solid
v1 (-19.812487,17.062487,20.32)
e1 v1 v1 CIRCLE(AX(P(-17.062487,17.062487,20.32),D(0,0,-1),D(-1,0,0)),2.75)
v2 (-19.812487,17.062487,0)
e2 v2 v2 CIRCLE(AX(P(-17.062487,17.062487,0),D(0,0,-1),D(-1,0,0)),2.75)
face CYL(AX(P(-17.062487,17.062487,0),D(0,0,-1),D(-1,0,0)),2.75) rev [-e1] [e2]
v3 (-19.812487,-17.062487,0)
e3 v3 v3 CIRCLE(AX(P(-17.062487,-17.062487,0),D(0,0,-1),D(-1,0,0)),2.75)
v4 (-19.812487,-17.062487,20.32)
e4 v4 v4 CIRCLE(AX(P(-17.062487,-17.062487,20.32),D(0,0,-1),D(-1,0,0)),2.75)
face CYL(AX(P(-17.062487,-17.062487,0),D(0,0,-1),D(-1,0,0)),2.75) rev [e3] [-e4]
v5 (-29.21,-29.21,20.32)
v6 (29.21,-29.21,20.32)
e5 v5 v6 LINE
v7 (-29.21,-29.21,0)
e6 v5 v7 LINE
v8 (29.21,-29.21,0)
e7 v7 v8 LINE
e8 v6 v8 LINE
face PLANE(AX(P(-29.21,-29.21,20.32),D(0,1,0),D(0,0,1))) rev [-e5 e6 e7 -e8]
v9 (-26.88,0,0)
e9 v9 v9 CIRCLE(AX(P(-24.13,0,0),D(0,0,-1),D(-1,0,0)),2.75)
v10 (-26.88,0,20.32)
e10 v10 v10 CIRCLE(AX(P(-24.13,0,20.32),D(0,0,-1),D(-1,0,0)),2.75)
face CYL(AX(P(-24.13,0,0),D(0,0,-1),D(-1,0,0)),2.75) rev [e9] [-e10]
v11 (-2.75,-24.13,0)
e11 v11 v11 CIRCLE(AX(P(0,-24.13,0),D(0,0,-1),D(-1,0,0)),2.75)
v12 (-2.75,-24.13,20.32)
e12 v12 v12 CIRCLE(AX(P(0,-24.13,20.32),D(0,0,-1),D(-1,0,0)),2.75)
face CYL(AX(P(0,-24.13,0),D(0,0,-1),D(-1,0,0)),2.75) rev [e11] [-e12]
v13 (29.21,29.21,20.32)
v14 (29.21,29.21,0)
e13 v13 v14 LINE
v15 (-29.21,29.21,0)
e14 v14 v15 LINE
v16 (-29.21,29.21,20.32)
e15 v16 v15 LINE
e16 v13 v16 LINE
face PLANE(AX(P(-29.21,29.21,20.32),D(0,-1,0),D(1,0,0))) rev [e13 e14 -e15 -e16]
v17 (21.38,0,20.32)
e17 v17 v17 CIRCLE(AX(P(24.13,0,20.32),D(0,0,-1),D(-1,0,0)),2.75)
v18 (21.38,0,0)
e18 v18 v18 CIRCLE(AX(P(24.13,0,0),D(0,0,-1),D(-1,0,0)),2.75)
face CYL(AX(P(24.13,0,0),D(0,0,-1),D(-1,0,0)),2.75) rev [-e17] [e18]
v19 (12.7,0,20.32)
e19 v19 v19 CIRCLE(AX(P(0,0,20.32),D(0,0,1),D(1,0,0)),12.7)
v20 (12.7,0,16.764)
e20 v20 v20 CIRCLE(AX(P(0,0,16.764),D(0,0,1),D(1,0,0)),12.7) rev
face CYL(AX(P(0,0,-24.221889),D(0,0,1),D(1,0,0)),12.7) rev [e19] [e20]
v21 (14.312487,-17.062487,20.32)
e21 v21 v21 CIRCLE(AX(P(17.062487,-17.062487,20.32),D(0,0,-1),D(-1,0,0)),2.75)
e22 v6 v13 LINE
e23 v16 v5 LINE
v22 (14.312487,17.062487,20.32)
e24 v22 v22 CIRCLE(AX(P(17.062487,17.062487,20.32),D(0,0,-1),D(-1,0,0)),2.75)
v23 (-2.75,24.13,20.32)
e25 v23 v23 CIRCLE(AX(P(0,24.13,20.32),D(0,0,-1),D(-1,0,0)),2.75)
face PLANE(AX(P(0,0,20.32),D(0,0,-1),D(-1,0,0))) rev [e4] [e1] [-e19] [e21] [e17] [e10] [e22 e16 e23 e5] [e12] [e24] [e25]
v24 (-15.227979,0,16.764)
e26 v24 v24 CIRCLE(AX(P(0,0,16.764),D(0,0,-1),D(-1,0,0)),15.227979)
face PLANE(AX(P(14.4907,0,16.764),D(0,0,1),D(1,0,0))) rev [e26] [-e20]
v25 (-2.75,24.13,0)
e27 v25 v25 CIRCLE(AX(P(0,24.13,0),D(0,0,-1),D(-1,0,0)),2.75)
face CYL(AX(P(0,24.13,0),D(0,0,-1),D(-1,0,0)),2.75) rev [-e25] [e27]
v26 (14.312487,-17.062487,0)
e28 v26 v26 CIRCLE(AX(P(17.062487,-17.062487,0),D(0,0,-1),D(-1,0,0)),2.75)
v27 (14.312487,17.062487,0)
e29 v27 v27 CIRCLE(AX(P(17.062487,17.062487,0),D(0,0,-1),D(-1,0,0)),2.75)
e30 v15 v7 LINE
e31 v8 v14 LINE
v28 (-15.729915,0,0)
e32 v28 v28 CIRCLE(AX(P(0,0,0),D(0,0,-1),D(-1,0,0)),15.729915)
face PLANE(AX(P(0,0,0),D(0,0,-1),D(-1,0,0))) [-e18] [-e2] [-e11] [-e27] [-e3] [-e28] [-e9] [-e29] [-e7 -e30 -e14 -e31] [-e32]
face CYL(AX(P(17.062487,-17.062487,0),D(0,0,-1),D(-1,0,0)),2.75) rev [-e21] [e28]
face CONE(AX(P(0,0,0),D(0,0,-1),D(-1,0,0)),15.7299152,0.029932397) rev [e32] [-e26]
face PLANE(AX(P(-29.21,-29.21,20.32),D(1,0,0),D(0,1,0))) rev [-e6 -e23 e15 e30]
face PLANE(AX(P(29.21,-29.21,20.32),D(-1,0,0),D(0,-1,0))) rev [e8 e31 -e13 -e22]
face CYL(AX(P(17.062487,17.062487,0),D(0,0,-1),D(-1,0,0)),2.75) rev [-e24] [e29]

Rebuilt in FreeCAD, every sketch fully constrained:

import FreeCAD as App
import Part
import Sketcher
from FreeCAD import Vector
Q = App.Units.Quantity


def add_polygon(sketch, points):
    """Adds a closed chain of lines whose ends are joined by coincident constraints."""
    first, n = sketch.GeometryCount, len(points)
    for a, b in zip(points, points[1:] + points[:1]):
        sketch.addGeometry(Part.LineSegment(App.Vector(*a, 0), App.Vector(*b, 0)), False)
    for i in range(n):
        sketch.addConstraint(Sketcher.Constraint("Coincident", first + i, 2, first + (i + 1) % n, 1))

doc = App.newDocument("Part")
body = doc.addObject("PartDesign::Body", "Body")

sketch1 = body.newObject("Sketcher::SketchObject", "Sketch")
sketch1.AttachmentSupport = (doc.getObject("XY_Plane"), [""])
sketch1.MapMode = "FlatFace"
add_polygon(sketch1, [(-29, 29), (-29, -29), (29, -29), (29, 29)])
sketch1.addConstraint(Sketcher.Constraint("Vertical", 0))
sketch1.addConstraint(Sketcher.Constraint("Horizontal", 1))
sketch1.addConstraint(Sketcher.Constraint("Vertical", 2))
sketch1.addConstraint(Sketcher.Constraint("Horizontal", 3))
sketch1.addConstraint(Sketcher.Constraint("Symmetric", 0, 2, 2, 2, -1, 1))
sketch1.addConstraint(Sketcher.Constraint("Equal", 3, 0))
sketch1.addConstraint(Sketcher.Constraint("DistanceX", 1, 1, 1, 2, Q("2.3 in")))
pad1 = body.newObject("PartDesign::Pad", "Pad")
pad1.Profile = sketch1
pad1.Length = Q("0.8 in")

sketch2 = body.newObject("Sketcher::SketchObject", "Sketch001")
sketch2.AttachmentSupport = (doc.getObject("YZ_Plane"), [""])
sketch2.MapMode = "FlatFace"
add_polygon(sketch2, [(0, 20.3), (0, 0), (15.7, 0), (15.2, 16.8), (14.5, 16.8), (14.5, 20.3)])
sketch2.addConstraint(Sketcher.Constraint("Vertical", 0))
sketch2.addConstraint(Sketcher.Constraint("Horizontal", 1))
sketch2.addConstraint(Sketcher.Constraint("Horizontal", 3))
sketch2.addConstraint(Sketcher.Constraint("Vertical", 4))
sketch2.addConstraint(Sketcher.Constraint("Horizontal", 5))
sketch2.addConstraint(Sketcher.Constraint("Coincident", 0, 2, -1, 1))
sketch2.addConstraint(Sketcher.Constraint("DistanceY", 0, 2, 0, 1, Q("0.8 in")))
sketch2.addConstraint(Sketcher.Constraint("DistanceY", 4, 1, 4, 2, Q("0.14 in")))
sketch2.addConstraint(Sketcher.Constraint("DistanceX", 5, 2, 5, 1, Q("0.5705 in")))
sketch2.addConstraint(Sketcher.Constraint("DistanceX", 3, 2, 3, 1, 0.737279))
sketch2.addConstraint(Sketcher.Constraint("DistanceX", 1, 1, 1, 2, 15.729915))
groove = body.newObject("PartDesign::Groove", "Groove")
groove.Profile = sketch2
groove.ReferenceAxis = (sketch2, ["V_Axis"])
groove.Angle = 360

sketch3 = body.newObject("Sketcher::SketchObject", "Sketch002")
sketch3.AttachmentSupport = (doc.getObject("XY_Plane"), [""])
sketch3.MapMode = "FlatFace"
sketch3.addGeometry(Part.Circle(Vector(0, 24.1, 0), Vector(0, 0, 1), 2.8), False)
sketch3.addConstraint(Sketcher.Constraint("PointOnObject", 0, 3, -2))
sketch3.addConstraint(Sketcher.Constraint("Diameter", 0, 5.5))
sketch3.addConstraint(Sketcher.Constraint("DistanceY", -1, 1, 0, 3, Q("0.95 in")))
doc.recompute()
hole = body.newObject("PartDesign::Hole", "Hole")
hole.Profile = sketch3
hole.ThreadType = "None"
hole.Diameter = 5.5
hole.DepthType = "Dimension"
hole.Depth = Q("0.8 in")
hole.DrillPoint = "Flat"
hole.Reversed = True
doc.recompute()

polarpattern = body.newObject("PartDesign::PolarPattern", "PolarPattern")
polarpattern.Originals = [hole]
polarpattern.Axis = (doc.getObject("Z_Axis"), [""])
polarpattern.Angle = 360
polarpattern.Occurrences = 8
body.Tip = polarpattern

sketch4 = body.newObject("Sketcher::SketchObject", "Sketch003")
sketch4.AttachmentSupport = (doc.getObject("XY_Plane"), [""])
sketch4.MapMode = "FlatFace"
sketch4.AttachmentOffset = App.Placement(Vector(0, 0, 0.8 * 25.4), App.Rotation())
sketch4.addGeometry(Part.Circle(Vector(0, 0, 0), Vector(0, 0, 1), 14), False)
sketch4.addGeometry(Part.Circle(Vector(0, 0, 0), Vector(0, 0, 1), 13), False)
sketch4.addConstraint(Sketcher.Constraint("Coincident", 0, 3, -1, 1))
sketch4.addConstraint(Sketcher.Constraint("Coincident", 1, 3, -1, 1))
sketch4.addConstraint(Sketcher.Constraint("Diameter", 1, Q("1 in")))
sketch4.addConstraint(Sketcher.Constraint("Diameter", 0, Q("1.141 in")))
pad2 = body.newObject("PartDesign::Pad", "Pad001")
pad2.Profile = sketch4
pad2.Length = Q("0.14 in")
pad2.Reversed = True

doc.recompute()
